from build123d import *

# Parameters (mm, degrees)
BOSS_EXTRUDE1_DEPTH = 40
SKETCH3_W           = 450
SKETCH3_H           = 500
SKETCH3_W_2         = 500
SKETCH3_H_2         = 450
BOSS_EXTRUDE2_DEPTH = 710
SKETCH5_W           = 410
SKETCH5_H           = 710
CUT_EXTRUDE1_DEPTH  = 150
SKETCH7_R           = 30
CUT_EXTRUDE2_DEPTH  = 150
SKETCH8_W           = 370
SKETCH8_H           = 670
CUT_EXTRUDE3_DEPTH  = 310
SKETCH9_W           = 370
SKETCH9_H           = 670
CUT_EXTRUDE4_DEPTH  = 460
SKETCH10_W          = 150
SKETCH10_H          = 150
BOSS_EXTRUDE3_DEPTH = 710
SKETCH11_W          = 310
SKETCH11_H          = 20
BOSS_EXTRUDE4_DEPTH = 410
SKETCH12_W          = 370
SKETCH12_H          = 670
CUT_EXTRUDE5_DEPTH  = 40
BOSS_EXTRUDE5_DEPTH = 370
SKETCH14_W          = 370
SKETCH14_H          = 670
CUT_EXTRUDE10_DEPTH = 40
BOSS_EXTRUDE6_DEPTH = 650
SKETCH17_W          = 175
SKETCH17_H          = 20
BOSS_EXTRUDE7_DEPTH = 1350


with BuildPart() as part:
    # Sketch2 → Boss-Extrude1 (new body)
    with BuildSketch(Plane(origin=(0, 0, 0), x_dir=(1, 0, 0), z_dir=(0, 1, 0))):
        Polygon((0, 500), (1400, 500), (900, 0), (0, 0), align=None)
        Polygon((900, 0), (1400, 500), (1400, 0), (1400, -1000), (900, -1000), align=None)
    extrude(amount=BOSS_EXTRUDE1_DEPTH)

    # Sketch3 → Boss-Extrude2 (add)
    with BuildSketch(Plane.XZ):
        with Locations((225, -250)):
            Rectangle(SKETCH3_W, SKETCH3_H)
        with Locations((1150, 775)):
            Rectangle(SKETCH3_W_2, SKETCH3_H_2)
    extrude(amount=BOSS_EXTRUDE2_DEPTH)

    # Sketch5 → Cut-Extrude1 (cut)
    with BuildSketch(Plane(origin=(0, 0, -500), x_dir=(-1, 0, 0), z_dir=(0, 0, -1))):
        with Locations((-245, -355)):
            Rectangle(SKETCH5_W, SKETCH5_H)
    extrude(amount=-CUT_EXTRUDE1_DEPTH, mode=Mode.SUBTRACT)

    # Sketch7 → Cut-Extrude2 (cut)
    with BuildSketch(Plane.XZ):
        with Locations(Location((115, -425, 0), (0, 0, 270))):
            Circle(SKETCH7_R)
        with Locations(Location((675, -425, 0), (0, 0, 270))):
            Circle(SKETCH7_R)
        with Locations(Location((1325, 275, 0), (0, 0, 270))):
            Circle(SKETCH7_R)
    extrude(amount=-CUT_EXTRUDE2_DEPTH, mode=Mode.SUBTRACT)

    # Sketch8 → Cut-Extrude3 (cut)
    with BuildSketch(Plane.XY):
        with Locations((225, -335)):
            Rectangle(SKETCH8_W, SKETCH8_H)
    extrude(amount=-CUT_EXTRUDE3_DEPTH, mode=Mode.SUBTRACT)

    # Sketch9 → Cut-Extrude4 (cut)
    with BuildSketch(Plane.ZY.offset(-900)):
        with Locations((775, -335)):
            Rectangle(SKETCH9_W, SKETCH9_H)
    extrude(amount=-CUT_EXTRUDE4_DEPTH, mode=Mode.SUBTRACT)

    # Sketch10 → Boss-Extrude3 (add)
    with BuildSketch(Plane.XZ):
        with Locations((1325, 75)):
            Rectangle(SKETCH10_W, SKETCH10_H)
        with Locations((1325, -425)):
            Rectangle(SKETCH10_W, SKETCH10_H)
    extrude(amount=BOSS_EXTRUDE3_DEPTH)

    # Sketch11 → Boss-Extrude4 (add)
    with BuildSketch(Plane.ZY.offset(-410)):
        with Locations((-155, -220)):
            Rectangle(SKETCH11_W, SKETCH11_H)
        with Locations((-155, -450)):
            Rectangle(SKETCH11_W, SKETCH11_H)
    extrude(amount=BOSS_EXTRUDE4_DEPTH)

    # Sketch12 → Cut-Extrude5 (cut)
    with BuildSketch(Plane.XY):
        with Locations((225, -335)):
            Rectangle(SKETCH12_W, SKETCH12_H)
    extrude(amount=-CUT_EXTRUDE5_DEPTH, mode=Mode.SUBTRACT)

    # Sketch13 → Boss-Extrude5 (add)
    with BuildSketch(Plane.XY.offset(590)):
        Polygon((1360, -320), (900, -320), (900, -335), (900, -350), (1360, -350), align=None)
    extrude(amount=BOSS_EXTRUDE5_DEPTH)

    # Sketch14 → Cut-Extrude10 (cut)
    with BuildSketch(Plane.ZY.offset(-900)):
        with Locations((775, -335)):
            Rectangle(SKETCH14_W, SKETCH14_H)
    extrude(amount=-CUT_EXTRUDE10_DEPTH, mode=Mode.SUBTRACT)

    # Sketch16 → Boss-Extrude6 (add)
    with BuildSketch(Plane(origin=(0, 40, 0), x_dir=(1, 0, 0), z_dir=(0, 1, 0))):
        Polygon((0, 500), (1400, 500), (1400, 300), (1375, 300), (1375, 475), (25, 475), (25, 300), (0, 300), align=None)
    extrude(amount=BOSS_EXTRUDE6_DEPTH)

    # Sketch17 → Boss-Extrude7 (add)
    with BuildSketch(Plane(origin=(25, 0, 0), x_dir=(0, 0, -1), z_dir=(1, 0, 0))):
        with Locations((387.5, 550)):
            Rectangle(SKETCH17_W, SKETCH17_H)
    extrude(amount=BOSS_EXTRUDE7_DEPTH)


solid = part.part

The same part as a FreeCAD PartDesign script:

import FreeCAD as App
import Part
import Sketcher
from FreeCAD import Vector


def add_polygon(sketch, points):
    """Adds a closed chain of lines whose ends are joined by coincident constraints."""
    first, n = sketch.GeometryCount, len(points)
    for a, b in zip(points, points[1:] + points[:1]):
        sketch.addGeometry(Part.LineSegment(App.Vector(*a, 0), App.Vector(*b, 0)), False)
    for i in range(n):
        sketch.addConstraint(Sketcher.Constraint("Coincident", first + i, 2, first + (i + 1) % n, 1))

doc = App.newDocument("Part")
params = doc.addObject("Spreadsheet::Sheet", "Params")
for row, (alias, value) in enumerate([
    ("sketch1_width", "1400 mm"),
    ("sketch1_width2", "900 mm"),
    ("sketch1_height", "1000 mm"),
    ("pad1_length", "40 mm"),
    ("sketch2_width", "450 mm"),
    ("sketch2_width2", "500 mm"),
    ("pad2_length", "710 mm"),
    ("sketch3_width", "410 mm"),
    ("sketch3_height", "710 mm"),
    ("pocket1_length", "150 mm"),
    ("sketch4_diameter", "60 mm"),
    ("pocket2_length", "150 mm"),
    ("sketch5_width", "370 mm"),
    ("sketch5_height", "670 mm"),
    ("pocket3_length", "310 mm"),
    ("sketch6_width", "670 mm"),
    ("sketch6_height", "370 mm"),
    ("pocket4_length", "460 mm"),
    ("sketch7_width", "150 mm"),
    ("pad3_length", "710 mm"),
    ("sketch8_width", "20 mm"),
    ("sketch8_height", "310 mm"),
    ("pad4_length", "410 mm"),
    ("sketch9_width", "370 mm"),
    ("sketch9_height", "670 mm"),
    ("pocket5_length", "40 mm"),
    ("sketch10_width", "460 mm"),
    ("sketch10_height", "30 mm"),
    ("pad5_length", "370 mm"),
    ("sketch11_width", "670 mm"),
    ("sketch11_height", "370 mm"),
    ("pocket6_length", "40 mm"),
    ("sketch12_width", "1400 mm"),
    ("sketch12_width2", "25 mm"),
    ("sketch12_height", "200 mm"),
    ("sketch12_height2", "175 mm"),
    ("pad6_length", "650 mm"),
    ("sketch13_width", "20 mm"),
    ("sketch13_height", "175 mm"),
    ("pad7_length", "1350 mm"),
], start=1):
    params.set(f"A{row}", alias)
    params.set(f"B{row}", "=" + value)
    params.setAlias(f"B{row}", alias)

body = doc.addObject("PartDesign::Body", "Body")

sketch1 = body.newObject("Sketcher::SketchObject", "Sketch")
sketch1.AttachmentSupport = (doc.getObject("XZ_Plane"), [""])
sketch1.MapMode = "FlatFace"
add_polygon(sketch1, [(1400, -500), (0, -500), (0, 0), (900, 0), (900, 1000), (1400, 1000)])
sketch1.addConstraint(Sketcher.Constraint("Horizontal", 0))
sketch1.addConstraint(Sketcher.Constraint("Vertical", 1))
sketch1.addConstraint(Sketcher.Constraint("Horizontal", 2))
sketch1.addConstraint(Sketcher.Constraint("Vertical", 3))
sketch1.addConstraint(Sketcher.Constraint("Horizontal", 4))
sketch1.addConstraint(Sketcher.Constraint("Vertical", 5))
sketch1.addConstraint(Sketcher.Constraint("Coincident", 1, 2, -1, 1))
sketch1.addConstraint(Sketcher.Constraint("Equal", 4, 1))
sketch1.addConstraint(Sketcher.Constraint("DistanceX", 0, 2, 0, 1, 1400.0))
sketch1.addConstraint(Sketcher.Constraint("DistanceX", 2, 1, 2, 2, 900.0))
sketch1.addConstraint(Sketcher.Constraint("DistanceY", 3, 1, 3, 2, 1000.0))
sketch1.setExpression("Constraints[14]", "Params.sketch1_width")
sketch1.setExpression("Constraints[15]", "Params.sketch1_width2")
sketch1.setExpression("Constraints[16]", "Params.sketch1_height")
pad1 = body.newObject("PartDesign::Pad", "Pad")
pad1.Profile = sketch1
pad1.setExpression("Length", "Params.pad1_length")
pad1.Reversed = True

sketch2 = body.newObject("Sketcher::SketchObject", "Sketch001")
sketch2.AttachmentSupport = (doc.getObject("XZ_Plane"), [""])
sketch2.MapMode = "FlatFace"
add_polygon(sketch2, [(0, 0), (0, -500), (450, -500), (450, 0)])
add_polygon(sketch2, [(900, 1000), (900, 550), (1400, 550), (1400, 1000)])
sketch2.addConstraint(Sketcher.Constraint("Vertical", 0))
sketch2.addConstraint(Sketcher.Constraint("Horizontal", 1))
sketch2.addConstraint(Sketcher.Constraint("Vertical", 2))
sketch2.addConstraint(Sketcher.Constraint("Horizontal", 3))
sketch2.addConstraint(Sketcher.Constraint("Vertical", 4))
sketch2.addConstraint(Sketcher.Constraint("Horizontal", 5))
sketch2.addConstraint(Sketcher.Constraint("Vertical", 6))
sketch2.addConstraint(Sketcher.Constraint("Horizontal", 7))
sketch2.addConstraint(Sketcher.Constraint("Coincident", 3, 2, -1, 1))
sketch2.addConstraint(Sketcher.Constraint("Equal", 7, 0))
sketch2.addConstraint(Sketcher.Constraint("Equal", 3, 4))
sketch2.addConstraint(Sketcher.Constraint("DistanceX", 1, 1, 1, 2, 450.0))
sketch2.addConstraint(Sketcher.Constraint("DistanceX", 5, 1, 5, 2, 500.0))
sketch2.addConstraint(Sketcher.Constraint("DistanceX", -1, 1, 4, 2, 900.0))
sketch2.addConstraint(Sketcher.Constraint("DistanceY", -1, 1, 4, 2, 550.0))
sketch2.setExpression("Constraints[19]", "Params.sketch2_width")
sketch2.setExpression("Constraints[20]", "Params.sketch2_width2")
pad2 = body.newObject("PartDesign::Pad", "Pad001")
pad2.Profile = sketch2
pad2.setExpression("Length", "Params.pad2_length")

sketch3 = body.newObject("Sketcher::SketchObject", "Sketch002")
sketch3.AttachmentSupport = (doc.getObject("XY_Plane"), [""])
sketch3.MapMode = "FlatFace"
sketch3.AttachmentOffset = App.Placement(Vector(0, 0, -500), App.Rotation())
add_polygon(sketch3, [(450, 0), (450, -710), (40, -710), (40, 0)])
sketch3.addConstraint(Sketcher.Constraint("Vertical", 0))
sketch3.addConstraint(Sketcher.Constraint("Horizontal", 1))
sketch3.addConstraint(Sketcher.Constraint("Vertical", 2))
sketch3.addConstraint(Sketcher.Constraint("Horizontal", 3))
sketch3.addConstraint(Sketcher.Constraint("PointOnObject", 2, 2, -1))
sketch3.addConstraint(Sketcher.Constraint("DistanceX", 1, 2, 1, 1, 410.0))
sketch3.addConstraint(Sketcher.Constraint("DistanceY", 0, 2, 0, 1, 710.0))
sketch3.addConstraint(Sketcher.Constraint("DistanceX", -1, 1, 0, 2, 450.0))
sketch3.setExpression("Constraints[9]", "Params.sketch3_width")
sketch3.setExpression("Constraints[10]", "Params.sketch3_height")
pocket1 = body.newObject("PartDesign::Pocket", "Pocket")
pocket1.Profile = sketch3
pocket1.setExpression("Length", "Params.pocket1_length")
pocket1.Reversed = True

sketch4 = body.newObject("Sketcher::SketchObject", "Sketch003")
sketch4.AttachmentSupport = (doc.getObject("XZ_Plane"), [""])
sketch4.MapMode = "FlatFace"
sketch4.addGeometry(Part.Circle(Vector(115, -425, 0), Vector(0, 0, 1), 30), False)
sketch4.addGeometry(Part.Circle(Vector(675, -425, 0), Vector(0, 0, 1), 30), False)
sketch4.addGeometry(Part.Circle(Vector(1325, 275, 0), Vector(0, 0, 1), 30), False)
sketch4.addConstraint(Sketcher.Constraint("Equal", 0, 1))
sketch4.addConstraint(Sketcher.Constraint("Equal", 1, 2))
sketch4.addConstraint(Sketcher.Constraint("Horizontal", 0, 3, 1, 3))
sketch4.addConstraint(Sketcher.Constraint("Diameter", 0, 60.0))
sketch4.addConstraint(Sketcher.Constraint("DistanceX", -1, 1, 0, 3, 115.0))
sketch4.addConstraint(Sketcher.Constraint("DistanceY", 0, 3, -1, 1, 425.0))
sketch4.addConstraint(Sketcher.Constraint("DistanceX", -1, 1, 1, 3, 675.0))
sketch4.addConstraint(Sketcher.Constraint("DistanceX", -1, 1, 2, 3, 1325.0))
sketch4.addConstraint(Sketcher.Constraint("DistanceY", -1, 1, 2, 3, 275.0))
sketch4.setExpression("Constraints[3]", "Params.sketch4_diameter")
pocket2 = body.newObject("PartDesign::Pocket", "Pocket001")
pocket2.Profile = sketch4
pocket2.setExpression("Length", "Params.pocket2_length")

sketch5 = body.newObject("Sketcher::SketchObject", "Sketch004")
sketch5.AttachmentSupport = (doc.getObject("XY_Plane"), [""])
sketch5.MapMode = "FlatFace"
add_polygon(sketch5, [(40, 0), (40, -670), (410, -670), (410, 0)])
sketch5.addConstraint(Sketcher.Constraint("Vertical", 0))
sketch5.addConstraint(Sketcher.Constraint("Horizontal", 1))
sketch5.addConstraint(Sketcher.Constraint("Vertical", 2))
sketch5.addConstraint(Sketcher.Constraint("Horizontal", 3))
sketch5.addConstraint(Sketcher.Constraint("PointOnObject", 2, 2, -1))
sketch5.addConstraint(Sketcher.Constraint("DistanceX", 1, 1, 1, 2, 370.0))
sketch5.addConstraint(Sketcher.Constraint("DistanceY", 0, 2, 0, 1, 670.0))
sketch5.addConstraint(Sketcher.Constraint("DistanceX", -1, 1, 0, 2, 40.0))
sketch5.setExpression("Constraints[9]", "Params.sketch5_width")
sketch5.setExpression("Constraints[10]", "Params.sketch5_height")
pocket3 = body.newObject("PartDesign::Pocket", "Pocket002")
pocket3.Profile = sketch5
pocket3.setExpression("Length", "Params.pocket3_length")

sketch6 = body.newObject("Sketcher::SketchObject", "Sketch005")
sketch6.AttachmentSupport = (doc.getObject("YZ_Plane"), [""])
sketch6.MapMode = "FlatFace"
sketch6.AttachmentOffset = App.Placement(Vector(0, 0, 900), App.Rotation())
add_polygon(sketch6, [(0, 590), (-670, 590), (-670, 960), (0, 960)])
sketch6.addConstraint(Sketcher.Constraint("Horizontal", 0))
sketch6.addConstraint(Sketcher.Constraint("Vertical", 1))
sketch6.addConstraint(Sketcher.Constraint("Horizontal", 2))
sketch6.addConstraint(Sketcher.Constraint("Vertical", 3))
sketch6.addConstraint(Sketcher.Constraint("PointOnObject", 2, 2, -2))
sketch6.addConstraint(Sketcher.Constraint("DistanceX", 0, 2, 0, 1, 670.0))
sketch6.addConstraint(Sketcher.Constraint("DistanceY", 1, 1, 1, 2, 370.0))
sketch6.addConstraint(Sketcher.Constraint("DistanceY", -1, 1, 0, 2, 590.0))
sketch6.setExpression("Constraints[9]", "Params.sketch6_width")
sketch6.setExpression("Constraints[10]", "Params.sketch6_height")
pocket4 = body.newObject("PartDesign::Pocket", "Pocket003")
pocket4.Profile = sketch6
pocket4.setExpression("Length", "Params.pocket4_length")
pocket4.Reversed = True

sketch7 = body.newObject("Sketcher::SketchObject", "Sketch006")
sketch7.AttachmentSupport = (doc.getObject("XZ_Plane"), [""])
sketch7.MapMode = "FlatFace"
add_polygon(sketch7, [(1250, 150), (1250, 0), (1400, 0), (1400, 150)])
add_polygon(sketch7, [(1250, -350), (1250, -500), (1400, -500), (1400, -350)])
sketch7.addConstraint(Sketcher.Constraint("Vertical", 0))
sketch7.addConstraint(Sketcher.Constraint("Horizontal", 1))
sketch7.addConstraint(Sketcher.Constraint("Vertical", 2))
sketch7.addConstraint(Sketcher.Constraint("Horizontal", 3))
sketch7.addConstraint(Sketcher.Constraint("Vertical", 4))
sketch7.addConstraint(Sketcher.Constraint("Horizontal", 5))
sketch7.addConstraint(Sketcher.Constraint("Vertical", 6))
sketch7.addConstraint(Sketcher.Constraint("Horizontal", 7))
sketch7.addConstraint(Sketcher.Constraint("PointOnObject", 0, 2, -1))
sketch7.addConstraint(Sketcher.Constraint("Vertical", 3, 2, 4, 2))
sketch7.addConstraint(Sketcher.Constraint("Vertical", 2, 2, 5, 2))
sketch7.addConstraint(Sketcher.Constraint("Equal", 7, 0))
sketch7.addConstraint(Sketcher.Constraint("Equal", 2, 4))
sketch7.addConstraint(Sketcher.Constraint("DistanceX", 1, 1, 1, 2, 150.0))
sketch7.addConstraint(Sketcher.Constraint("DistanceX", -1, 1, 0, 2, 1250.0))
sketch7.addConstraint(Sketcher.Constraint("DistanceY", 4, 2, -1, 1, 500.0))
sketch7.setExpression("Constraints[21]", "Params.sketch7_width")
pad3 = body.newObject("PartDesign::Pad", "Pad002")
pad3.Profile = sketch7
pad3.setExpression("Length", "Params.pad3_length")

sketch8 = body.newObject("Sketcher::SketchObject", "Sketch007")
sketch8.AttachmentSupport = (doc.getObject("YZ_Plane"), [""])
sketch8.MapMode = "FlatFace"
sketch8.AttachmentOffset = App.Placement(Vector(0, 0, 410), App.Rotation())
add_polygon(sketch8, [(-210, -310), (-230, -310), (-230, 0), (-210, 0)])
add_polygon(sketch8, [(-440, -310), (-460, -310), (-460, 0), (-440, 0)])
sketch8.addConstraint(Sketcher.Constraint("Horizontal", 0))
sketch8.addConstraint(Sketcher.Constraint("Vertical", 1))
sketch8.addConstraint(Sketcher.Constraint("Horizontal", 2))
sketch8.addConstraint(Sketcher.Constraint("Vertical", 3))
sketch8.addConstraint(Sketcher.Constraint("Horizontal", 4))
sketch8.addConstraint(Sketcher.Constraint("Vertical", 5))
sketch8.addConstraint(Sketcher.Constraint("Horizontal", 6))
sketch8.addConstraint(Sketcher.Constraint("Vertical", 7))
sketch8.addConstraint(Sketcher.Constraint("PointOnObject", 1, 2, -1))
sketch8.addConstraint(Sketcher.Constraint("PointOnObject", 5, 2, -1))
sketch8.addConstraint(Sketcher.Constraint("Horizontal", 3, 2, 4, 2))
sketch8.addConstraint(Sketcher.Constraint("Equal", 2, 4))
sketch8.addConstraint(Sketcher.Constraint("DistanceX", 0, 2, 0, 1, 20.0))
sketch8.addConstraint(Sketcher.Constraint("DistanceY", 1, 1, 1, 2, 310.0))
sketch8.addConstraint(Sketcher.Constraint("DistanceX", 0, 2, -1, 1, 230.0))
sketch8.addConstraint(Sketcher.Constraint("DistanceX", 4, 2, -1, 1, 460.0))
sketch8.setExpression("Constraints[20]", "Params.sketch8_width")
sketch8.setExpression("Constraints[21]", "Params.sketch8_height")
pad4 = body.newObject("PartDesign::Pad", "Pad003")
pad4.Profile = sketch8
pad4.setExpression("Length", "Params.pad4_length")
pad4.Reversed = True

sketch9 = body.newObject("Sketcher::SketchObject", "Sketch008")
sketch9.AttachmentSupport = (doc.getObject("XY_Plane"), [""])
sketch9.MapMode = "FlatFace"
add_polygon(sketch9, [(40, 0), (40, -670), (410, -670), (410, 0)])
sketch9.addConstraint(Sketcher.Constraint("Vertical", 0))
sketch9.addConstraint(Sketcher.Constraint("Horizontal", 1))
sketch9.addConstraint(Sketcher.Constraint("Vertical", 2))
sketch9.addConstraint(Sketcher.Constraint("Horizontal", 3))
sketch9.addConstraint(Sketcher.Constraint("PointOnObject", 2, 2, -1))
sketch9.addConstraint(Sketcher.Constraint("DistanceX", 1, 1, 1, 2, 370.0))
sketch9.addConstraint(Sketcher.Constraint("DistanceY", 0, 2, 0, 1, 670.0))
sketch9.addConstraint(Sketcher.Constraint("DistanceX", -1, 1, 0, 2, 40.0))
sketch9.setExpression("Constraints[9]", "Params.sketch9_width")
sketch9.setExpression("Constraints[10]", "Params.sketch9_height")
pocket5 = body.newObject("PartDesign::Pocket", "Pocket004")
pocket5.Profile = sketch9
pocket5.setExpression("Length", "Params.pocket5_length")

sketch10 = body.newObject("Sketcher::SketchObject", "Sketch009")
sketch10.AttachmentSupport = (doc.getObject("XY_Plane"), [""])
sketch10.MapMode = "FlatFace"
sketch10.AttachmentOffset = App.Placement(Vector(0, 0, 590), App.Rotation())
add_polygon(sketch10, [(1360, -320), (900, -320), (900, -350), (1360, -350)])
sketch10.addConstraint(Sketcher.Constraint("Horizontal", 0))
sketch10.addConstraint(Sketcher.Constraint("Vertical", 1))
sketch10.addConstraint(Sketcher.Constraint("Horizontal", 2))
sketch10.addConstraint(Sketcher.Constraint("Vertical", 3))
sketch10.addConstraint(Sketcher.Constraint("DistanceX", 0, 2, 0, 1, 460.0))
sketch10.addConstraint(Sketcher.Constraint("DistanceY", 1, 2, 1, 1, 30.0))
sketch10.addConstraint(Sketcher.Constraint("DistanceX", -1, 1, 0, 2, 900.0))
sketch10.addConstraint(Sketcher.Constraint("DistanceY", 0, 2, -1, 1, 320.0))
sketch10.setExpression("Constraints[8]", "Params.sketch10_width")
sketch10.setExpression("Constraints[9]", "Params.sketch10_height")
pad5 = body.newObject("PartDesign::Pad", "Pad004")
pad5.Profile = sketch10
pad5.setExpression("Length", "Params.pad5_length")

sketch11 = body.newObject("Sketcher::SketchObject", "Sketch010")
sketch11.AttachmentSupport = (doc.getObject("YZ_Plane"), [""])
sketch11.MapMode = "FlatFace"
sketch11.AttachmentOffset = App.Placement(Vector(0, 0, 900), App.Rotation())
add_polygon(sketch11, [(0, 590), (-670, 590), (-670, 960), (0, 960)])
sketch11.addConstraint(Sketcher.Constraint("Horizontal", 0))
sketch11.addConstraint(Sketcher.Constraint("Vertical", 1))
sketch11.addConstraint(Sketcher.Constraint("Horizontal", 2))
sketch11.addConstraint(Sketcher.Constraint("Vertical", 3))
sketch11.addConstraint(Sketcher.Constraint("PointOnObject", 2, 2, -2))
sketch11.addConstraint(Sketcher.Constraint("DistanceX", 0, 2, 0, 1, 670.0))
sketch11.addConstraint(Sketcher.Constraint("DistanceY", 1, 1, 1, 2, 370.0))
sketch11.addConstraint(Sketcher.Constraint("DistanceY", -1, 1, 0, 2, 590.0))
sketch11.setExpression("Constraints[9]", "Params.sketch11_width")
sketch11.setExpression("Constraints[10]", "Params.sketch11_height")
pocket6 = body.newObject("PartDesign::Pocket", "Pocket005")
pocket6.Profile = sketch11
pocket6.setExpression("Length", "Params.pocket6_length")
pocket6.Reversed = True

sketch12 = body.newObject("Sketcher::SketchObject", "Sketch011")
sketch12.AttachmentSupport = (doc.getObject("XZ_Plane"), [""])
sketch12.MapMode = "FlatFace"
sketch12.AttachmentOffset = App.Placement(Vector(0, 0, -40), App.Rotation())
add_polygon(sketch12, [(1400, -500), (0, -500), (0, -300), (25, -300), (25, -475), (1375, -475), (1375, -300), (1400, -300)])
sketch12.addConstraint(Sketcher.Constraint("Horizontal", 0))
sketch12.addConstraint(Sketcher.Constraint("Vertical", 1))
sketch12.addConstraint(Sketcher.Constraint("Horizontal", 2))
sketch12.addConstraint(Sketcher.Constraint("Vertical", 3))
sketch12.addConstraint(Sketcher.Constraint("Horizontal", 4))
sketch12.addConstraint(Sketcher.Constraint("Vertical", 5))
sketch12.addConstraint(Sketcher.Constraint("Horizontal", 6))
sketch12.addConstraint(Sketcher.Constraint("Vertical", 7))
sketch12.addConstraint(Sketcher.Constraint("PointOnObject", 0, 2, -2))
sketch12.addConstraint(Sketcher.Constraint("Horizontal", 2, 2, 5, 2))
sketch12.addConstraint(Sketcher.Constraint("Equal", 2, 6))
sketch12.addConstraint(Sketcher.Constraint("DistanceX", 0, 2, 0, 1, 1400.0))
sketch12.addConstraint(Sketcher.Constraint("DistanceX", 2, 1, 2, 2, 25.0))
sketch12.addConstraint(Sketcher.Constraint("DistanceY", 1, 1, 1, 2, 200.0))
sketch12.addConstraint(Sketcher.Constraint("DistanceY", 3, 2, 3, 1, 175.0))
sketch12.addConstraint(Sketcher.Constraint("DistanceY", 0, 2, -1, 1, 500.0))
sketch12.setExpression("Constraints[19]", "Params.sketch12_width")
sketch12.setExpression("Constraints[20]", "Params.sketch12_width2")
sketch12.setExpression("Constraints[21]", "Params.sketch12_height")
sketch12.setExpression("Constraints[22]", "Params.sketch12_height2")
pad6 = body.newObject("PartDesign::Pad", "Pad005")
pad6.Profile = sketch12
pad6.setExpression("Length", "Params.pad6_length")
pad6.Reversed = True

sketch13 = body.newObject("Sketcher::SketchObject", "Sketch012")
sketch13.AttachmentSupport = (doc.getObject("YZ_Plane"), [""])
sketch13.MapMode = "FlatFace"
sketch13.AttachmentOffset = App.Placement(Vector(0, 0, 25), App.Rotation())
add_polygon(sketch13, [(560, -300), (540, -300), (540, -475), (560, -475)])
sketch13.addConstraint(Sketcher.Constraint("Horizontal", 0))
sketch13.addConstraint(Sketcher.Constraint("Vertical", 1))
sketch13.addConstraint(Sketcher.Constraint("Horizontal", 2))
sketch13.addConstraint(Sketcher.Constraint("Vertical", 3))
sketch13.addConstraint(Sketcher.Constraint("DistanceX", 0, 2, 0, 1, 20.0))
sketch13.addConstraint(Sketcher.Constraint("DistanceY", 1, 2, 1, 1, 175.0))
sketch13.addConstraint(Sketcher.Constraint("DistanceX", -1, 1, 0, 2, 540.0))
sketch13.addConstraint(Sketcher.Constraint("DistanceY", 0, 2, -1, 1, 300.0))
sketch13.setExpression("Constraints[8]", "Params.sketch13_width")
sketch13.setExpression("Constraints[9]", "Params.sketch13_height")
pad7 = body.newObject("PartDesign::Pad", "Pad006")
pad7.Profile = sketch13
pad7.setExpression("Length", "Params.pad7_length")

doc.recompute()
